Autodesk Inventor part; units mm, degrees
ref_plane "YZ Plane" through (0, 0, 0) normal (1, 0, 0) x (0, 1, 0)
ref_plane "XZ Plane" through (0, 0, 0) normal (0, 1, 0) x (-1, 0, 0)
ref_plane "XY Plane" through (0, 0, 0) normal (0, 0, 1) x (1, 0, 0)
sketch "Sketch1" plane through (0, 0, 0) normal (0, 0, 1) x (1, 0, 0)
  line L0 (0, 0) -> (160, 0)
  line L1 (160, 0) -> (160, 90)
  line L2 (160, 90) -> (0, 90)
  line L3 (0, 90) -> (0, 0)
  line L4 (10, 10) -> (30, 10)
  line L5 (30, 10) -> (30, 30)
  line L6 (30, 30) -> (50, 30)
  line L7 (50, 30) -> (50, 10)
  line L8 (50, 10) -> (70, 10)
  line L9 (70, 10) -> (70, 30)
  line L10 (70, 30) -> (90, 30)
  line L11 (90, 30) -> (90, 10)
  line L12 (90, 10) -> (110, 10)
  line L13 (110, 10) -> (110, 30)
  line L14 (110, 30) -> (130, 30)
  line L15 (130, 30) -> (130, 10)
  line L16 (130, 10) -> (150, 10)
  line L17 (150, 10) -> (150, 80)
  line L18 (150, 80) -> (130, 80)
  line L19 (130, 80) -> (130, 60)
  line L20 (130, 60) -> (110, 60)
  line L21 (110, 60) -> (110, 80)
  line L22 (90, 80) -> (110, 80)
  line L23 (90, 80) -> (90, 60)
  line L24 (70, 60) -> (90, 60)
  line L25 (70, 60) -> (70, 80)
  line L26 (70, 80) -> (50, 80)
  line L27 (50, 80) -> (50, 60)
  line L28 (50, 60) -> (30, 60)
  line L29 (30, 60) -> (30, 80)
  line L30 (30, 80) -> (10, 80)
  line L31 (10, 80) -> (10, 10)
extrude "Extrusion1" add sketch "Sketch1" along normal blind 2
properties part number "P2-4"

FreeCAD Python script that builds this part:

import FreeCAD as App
import Part
import Sketcher

V = App.Vector


def add_polygon(sketch, points):
    """Adds a closed chain of lines whose ends are joined by coincident constraints."""
    first, n = sketch.GeometryCount, len(points)
    for a, b in zip(points, points[1:] + points[:1]):
        sketch.addGeometry(Part.LineSegment(App.Vector(*a, 0), App.Vector(*b, 0)), False)
    for i in range(n):
        sketch.addConstraint(Sketcher.Constraint("Coincident", first + i, 2, first + (i + 1) % n, 1))

doc = App.newDocument("Part")
params = doc.addObject("Spreadsheet::Sheet", "Params")
for row, (alias, value) in enumerate([
    ("sketch1_width", "160 mm"),
    ("sketch1_width2", "20 mm"),
    ("sketch1_height", "90 mm"),
    ("sketch1_height2", "70 mm"),
    ("pad1_length", "2 mm"),
], start=1):
    params.set(f"A{row}", alias)
    params.set(f"B{row}", "=" + value)
    params.setAlias(f"B{row}", alias)

body = doc.addObject("PartDesign::Body", "Body")

# Sketch on XY plane
sketch1 = doc.addObject("Sketcher::SketchObject", "Sketch")
body.addObject(sketch1)
sketch1.AttachmentSupport = (doc.XY_Plane, [""])
sketch1.MapMode = "FlatFace"
add_polygon(sketch1, [(0, 90), (0, 0), (160, 0), (160, 90)])  # lines 0-3
add_polygon(sketch1, [(30, 10), (10, 10), (10, 80), (30, 80), (30, 60), (50, 60), (50, 80), (70, 80), (70, 60), (90, 60), (90, 80), (110, 80), (110, 60), (130, 60), (130, 80), (150, 80), (150, 10), (130, 10), (130, 30), (110, 30), (110, 10), (90, 10), (90, 30), (70, 30), (70, 10), (50, 10), (50, 30), (30, 30)])  # lines 4-31
sketch1.addConstraint(Sketcher.Constraint("Vertical", 0))
sketch1.addConstraint(Sketcher.Constraint("Horizontal", 1))
sketch1.addConstraint(Sketcher.Constraint("Vertical", 2))
sketch1.addConstraint(Sketcher.Constraint("Horizontal", 3))
sketch1.addConstraint(Sketcher.Constraint("Horizontal", 4))
sketch1.addConstraint(Sketcher.Constraint("Vertical", 5))
sketch1.addConstraint(Sketcher.Constraint("Horizontal", 6))
sketch1.addConstraint(Sketcher.Constraint("Vertical", 7))
sketch1.addConstraint(Sketcher.Constraint("Horizontal", 8))
sketch1.addConstraint(Sketcher.Constraint("Vertical", 9))
sketch1.addConstraint(Sketcher.Constraint("Horizontal", 10))
sketch1.addConstraint(Sketcher.Constraint("Vertical", 11))
sketch1.addConstraint(Sketcher.Constraint("Horizontal", 12))
sketch1.addConstraint(Sketcher.Constraint("Vertical", 13))
sketch1.addConstraint(Sketcher.Constraint("Horizontal", 14))
sketch1.addConstraint(Sketcher.Constraint("Vertical", 15))
sketch1.addConstraint(Sketcher.Constraint("Horizontal", 16))
sketch1.addConstraint(Sketcher.Constraint("Vertical", 17))
sketch1.addConstraint(Sketcher.Constraint("Horizontal", 18))
sketch1.addConstraint(Sketcher.Constraint("Vertical", 19))
sketch1.addConstraint(Sketcher.Constraint("Horizontal", 20))
sketch1.addConstraint(Sketcher.Constraint("Vertical", 21))
sketch1.addConstraint(Sketcher.Constraint("Horizontal", 22))
sketch1.addConstraint(Sketcher.Constraint("Vertical", 23))
sketch1.addConstraint(Sketcher.Constraint("Horizontal", 24))
sketch1.addConstraint(Sketcher.Constraint("Vertical", 25))
sketch1.addConstraint(Sketcher.Constraint("Horizontal", 26))
sketch1.addConstraint(Sketcher.Constraint("Vertical", 27))
sketch1.addConstraint(Sketcher.Constraint("Horizontal", 28))
sketch1.addConstraint(Sketcher.Constraint("Vertical", 29))
sketch1.addConstraint(Sketcher.Constraint("Horizontal", 30))
sketch1.addConstraint(Sketcher.Constraint("Vertical", 31))
sketch1.addConstraint(Sketcher.Constraint("Coincident", 0, 2, -1, 1))
sketch1.addConstraint(Sketcher.Constraint("Horizontal", 6, 2, 9, 2))
sketch1.addConstraint(Sketcher.Constraint("Horizontal", 8, 2, 11, 2))
sketch1.addConstraint(Sketcher.Constraint("Horizontal", 10, 2, 13, 2))
sketch1.addConstraint(Sketcher.Constraint("Horizontal", 12, 2, 15, 2))
sketch1.addConstraint(Sketcher.Constraint("Horizontal", 14, 2, 17, 2))
sketch1.addConstraint(Sketcher.Constraint("Horizontal", 4, 2, 19, 2))
sketch1.addConstraint(Sketcher.Constraint("Horizontal", 20, 2, 23, 2))
sketch1.addConstraint(Sketcher.Constraint("Horizontal", 22, 2, 25, 2))
sketch1.addConstraint(Sketcher.Constraint("Horizontal", 24, 2, 27, 2))
sketch1.addConstraint(Sketcher.Constraint("Horizontal", 26, 2, 29, 2))
sketch1.addConstraint(Sketcher.Constraint("Vertical", 17, 2, 20, 2))
sketch1.addConstraint(Sketcher.Constraint("Vertical", 15, 2, 22, 2))
sketch1.addConstraint(Sketcher.Constraint("Vertical", 13, 2, 24, 2))
sketch1.addConstraint(Sketcher.Constraint("Vertical", 11, 2, 26, 2))
sketch1.addConstraint(Sketcher.Constraint("Vertical", 9, 2, 28, 2))
sketch1.addConstraint(Sketcher.Constraint("Vertical", 7, 2, 30, 2))
sketch1.addConstraint(Sketcher.Constraint("Equal", 6, 8))
sketch1.addConstraint(Sketcher.Constraint("Equal", 8, 10))
sketch1.addConstraint(Sketcher.Constraint("Equal", 10, 12))
sketch1.addConstraint(Sketcher.Constraint("Equal", 12, 14))
sketch1.addConstraint(Sketcher.Constraint("Equal", 14, 16))
sketch1.addConstraint(Sketcher.Constraint("Equal", 16, 18))
sketch1.addConstraint(Sketcher.Constraint("Equal", 30, 7))
sketch1.addConstraint(Sketcher.Constraint("Equal", 17, 21))
sketch1.addConstraint(Sketcher.Constraint("DistanceX", 1, 1, 1, 2, 160.0))
sketch1.addConstraint(Sketcher.Constraint("DistanceX", 4, 2, 4, 1, 20.0))
sketch1.addConstraint(Sketcher.Constraint("DistanceY", 0, 2, 0, 1, 90.0))
sketch1.addConstraint(Sketcher.Constraint("DistanceY", 5, 1, 5, 2, 70.0))
sketch1.addConstraint(Sketcher.Constraint("DistanceX", -1, 1, 4, 2, 10.0))
sketch1.addConstraint(Sketcher.Constraint("DistanceY", -1, 1, 4, 2, 10.0))
sketch1.setExpression("Constraints[89]", "Params.sketch1_width")
sketch1.setExpression("Constraints[90]", "Params.sketch1_width2")
sketch1.setExpression("Constraints[91]", "Params.sketch1_height")
sketch1.setExpression("Constraints[92]", "Params.sketch1_height2")
pad1 = doc.addObject("PartDesign::Pad", "Pad")
body.addObject(pad1)
pad1.Profile = sketch1
pad1.setExpression("Length", "Params.pad1_length")

doc.recompute()
